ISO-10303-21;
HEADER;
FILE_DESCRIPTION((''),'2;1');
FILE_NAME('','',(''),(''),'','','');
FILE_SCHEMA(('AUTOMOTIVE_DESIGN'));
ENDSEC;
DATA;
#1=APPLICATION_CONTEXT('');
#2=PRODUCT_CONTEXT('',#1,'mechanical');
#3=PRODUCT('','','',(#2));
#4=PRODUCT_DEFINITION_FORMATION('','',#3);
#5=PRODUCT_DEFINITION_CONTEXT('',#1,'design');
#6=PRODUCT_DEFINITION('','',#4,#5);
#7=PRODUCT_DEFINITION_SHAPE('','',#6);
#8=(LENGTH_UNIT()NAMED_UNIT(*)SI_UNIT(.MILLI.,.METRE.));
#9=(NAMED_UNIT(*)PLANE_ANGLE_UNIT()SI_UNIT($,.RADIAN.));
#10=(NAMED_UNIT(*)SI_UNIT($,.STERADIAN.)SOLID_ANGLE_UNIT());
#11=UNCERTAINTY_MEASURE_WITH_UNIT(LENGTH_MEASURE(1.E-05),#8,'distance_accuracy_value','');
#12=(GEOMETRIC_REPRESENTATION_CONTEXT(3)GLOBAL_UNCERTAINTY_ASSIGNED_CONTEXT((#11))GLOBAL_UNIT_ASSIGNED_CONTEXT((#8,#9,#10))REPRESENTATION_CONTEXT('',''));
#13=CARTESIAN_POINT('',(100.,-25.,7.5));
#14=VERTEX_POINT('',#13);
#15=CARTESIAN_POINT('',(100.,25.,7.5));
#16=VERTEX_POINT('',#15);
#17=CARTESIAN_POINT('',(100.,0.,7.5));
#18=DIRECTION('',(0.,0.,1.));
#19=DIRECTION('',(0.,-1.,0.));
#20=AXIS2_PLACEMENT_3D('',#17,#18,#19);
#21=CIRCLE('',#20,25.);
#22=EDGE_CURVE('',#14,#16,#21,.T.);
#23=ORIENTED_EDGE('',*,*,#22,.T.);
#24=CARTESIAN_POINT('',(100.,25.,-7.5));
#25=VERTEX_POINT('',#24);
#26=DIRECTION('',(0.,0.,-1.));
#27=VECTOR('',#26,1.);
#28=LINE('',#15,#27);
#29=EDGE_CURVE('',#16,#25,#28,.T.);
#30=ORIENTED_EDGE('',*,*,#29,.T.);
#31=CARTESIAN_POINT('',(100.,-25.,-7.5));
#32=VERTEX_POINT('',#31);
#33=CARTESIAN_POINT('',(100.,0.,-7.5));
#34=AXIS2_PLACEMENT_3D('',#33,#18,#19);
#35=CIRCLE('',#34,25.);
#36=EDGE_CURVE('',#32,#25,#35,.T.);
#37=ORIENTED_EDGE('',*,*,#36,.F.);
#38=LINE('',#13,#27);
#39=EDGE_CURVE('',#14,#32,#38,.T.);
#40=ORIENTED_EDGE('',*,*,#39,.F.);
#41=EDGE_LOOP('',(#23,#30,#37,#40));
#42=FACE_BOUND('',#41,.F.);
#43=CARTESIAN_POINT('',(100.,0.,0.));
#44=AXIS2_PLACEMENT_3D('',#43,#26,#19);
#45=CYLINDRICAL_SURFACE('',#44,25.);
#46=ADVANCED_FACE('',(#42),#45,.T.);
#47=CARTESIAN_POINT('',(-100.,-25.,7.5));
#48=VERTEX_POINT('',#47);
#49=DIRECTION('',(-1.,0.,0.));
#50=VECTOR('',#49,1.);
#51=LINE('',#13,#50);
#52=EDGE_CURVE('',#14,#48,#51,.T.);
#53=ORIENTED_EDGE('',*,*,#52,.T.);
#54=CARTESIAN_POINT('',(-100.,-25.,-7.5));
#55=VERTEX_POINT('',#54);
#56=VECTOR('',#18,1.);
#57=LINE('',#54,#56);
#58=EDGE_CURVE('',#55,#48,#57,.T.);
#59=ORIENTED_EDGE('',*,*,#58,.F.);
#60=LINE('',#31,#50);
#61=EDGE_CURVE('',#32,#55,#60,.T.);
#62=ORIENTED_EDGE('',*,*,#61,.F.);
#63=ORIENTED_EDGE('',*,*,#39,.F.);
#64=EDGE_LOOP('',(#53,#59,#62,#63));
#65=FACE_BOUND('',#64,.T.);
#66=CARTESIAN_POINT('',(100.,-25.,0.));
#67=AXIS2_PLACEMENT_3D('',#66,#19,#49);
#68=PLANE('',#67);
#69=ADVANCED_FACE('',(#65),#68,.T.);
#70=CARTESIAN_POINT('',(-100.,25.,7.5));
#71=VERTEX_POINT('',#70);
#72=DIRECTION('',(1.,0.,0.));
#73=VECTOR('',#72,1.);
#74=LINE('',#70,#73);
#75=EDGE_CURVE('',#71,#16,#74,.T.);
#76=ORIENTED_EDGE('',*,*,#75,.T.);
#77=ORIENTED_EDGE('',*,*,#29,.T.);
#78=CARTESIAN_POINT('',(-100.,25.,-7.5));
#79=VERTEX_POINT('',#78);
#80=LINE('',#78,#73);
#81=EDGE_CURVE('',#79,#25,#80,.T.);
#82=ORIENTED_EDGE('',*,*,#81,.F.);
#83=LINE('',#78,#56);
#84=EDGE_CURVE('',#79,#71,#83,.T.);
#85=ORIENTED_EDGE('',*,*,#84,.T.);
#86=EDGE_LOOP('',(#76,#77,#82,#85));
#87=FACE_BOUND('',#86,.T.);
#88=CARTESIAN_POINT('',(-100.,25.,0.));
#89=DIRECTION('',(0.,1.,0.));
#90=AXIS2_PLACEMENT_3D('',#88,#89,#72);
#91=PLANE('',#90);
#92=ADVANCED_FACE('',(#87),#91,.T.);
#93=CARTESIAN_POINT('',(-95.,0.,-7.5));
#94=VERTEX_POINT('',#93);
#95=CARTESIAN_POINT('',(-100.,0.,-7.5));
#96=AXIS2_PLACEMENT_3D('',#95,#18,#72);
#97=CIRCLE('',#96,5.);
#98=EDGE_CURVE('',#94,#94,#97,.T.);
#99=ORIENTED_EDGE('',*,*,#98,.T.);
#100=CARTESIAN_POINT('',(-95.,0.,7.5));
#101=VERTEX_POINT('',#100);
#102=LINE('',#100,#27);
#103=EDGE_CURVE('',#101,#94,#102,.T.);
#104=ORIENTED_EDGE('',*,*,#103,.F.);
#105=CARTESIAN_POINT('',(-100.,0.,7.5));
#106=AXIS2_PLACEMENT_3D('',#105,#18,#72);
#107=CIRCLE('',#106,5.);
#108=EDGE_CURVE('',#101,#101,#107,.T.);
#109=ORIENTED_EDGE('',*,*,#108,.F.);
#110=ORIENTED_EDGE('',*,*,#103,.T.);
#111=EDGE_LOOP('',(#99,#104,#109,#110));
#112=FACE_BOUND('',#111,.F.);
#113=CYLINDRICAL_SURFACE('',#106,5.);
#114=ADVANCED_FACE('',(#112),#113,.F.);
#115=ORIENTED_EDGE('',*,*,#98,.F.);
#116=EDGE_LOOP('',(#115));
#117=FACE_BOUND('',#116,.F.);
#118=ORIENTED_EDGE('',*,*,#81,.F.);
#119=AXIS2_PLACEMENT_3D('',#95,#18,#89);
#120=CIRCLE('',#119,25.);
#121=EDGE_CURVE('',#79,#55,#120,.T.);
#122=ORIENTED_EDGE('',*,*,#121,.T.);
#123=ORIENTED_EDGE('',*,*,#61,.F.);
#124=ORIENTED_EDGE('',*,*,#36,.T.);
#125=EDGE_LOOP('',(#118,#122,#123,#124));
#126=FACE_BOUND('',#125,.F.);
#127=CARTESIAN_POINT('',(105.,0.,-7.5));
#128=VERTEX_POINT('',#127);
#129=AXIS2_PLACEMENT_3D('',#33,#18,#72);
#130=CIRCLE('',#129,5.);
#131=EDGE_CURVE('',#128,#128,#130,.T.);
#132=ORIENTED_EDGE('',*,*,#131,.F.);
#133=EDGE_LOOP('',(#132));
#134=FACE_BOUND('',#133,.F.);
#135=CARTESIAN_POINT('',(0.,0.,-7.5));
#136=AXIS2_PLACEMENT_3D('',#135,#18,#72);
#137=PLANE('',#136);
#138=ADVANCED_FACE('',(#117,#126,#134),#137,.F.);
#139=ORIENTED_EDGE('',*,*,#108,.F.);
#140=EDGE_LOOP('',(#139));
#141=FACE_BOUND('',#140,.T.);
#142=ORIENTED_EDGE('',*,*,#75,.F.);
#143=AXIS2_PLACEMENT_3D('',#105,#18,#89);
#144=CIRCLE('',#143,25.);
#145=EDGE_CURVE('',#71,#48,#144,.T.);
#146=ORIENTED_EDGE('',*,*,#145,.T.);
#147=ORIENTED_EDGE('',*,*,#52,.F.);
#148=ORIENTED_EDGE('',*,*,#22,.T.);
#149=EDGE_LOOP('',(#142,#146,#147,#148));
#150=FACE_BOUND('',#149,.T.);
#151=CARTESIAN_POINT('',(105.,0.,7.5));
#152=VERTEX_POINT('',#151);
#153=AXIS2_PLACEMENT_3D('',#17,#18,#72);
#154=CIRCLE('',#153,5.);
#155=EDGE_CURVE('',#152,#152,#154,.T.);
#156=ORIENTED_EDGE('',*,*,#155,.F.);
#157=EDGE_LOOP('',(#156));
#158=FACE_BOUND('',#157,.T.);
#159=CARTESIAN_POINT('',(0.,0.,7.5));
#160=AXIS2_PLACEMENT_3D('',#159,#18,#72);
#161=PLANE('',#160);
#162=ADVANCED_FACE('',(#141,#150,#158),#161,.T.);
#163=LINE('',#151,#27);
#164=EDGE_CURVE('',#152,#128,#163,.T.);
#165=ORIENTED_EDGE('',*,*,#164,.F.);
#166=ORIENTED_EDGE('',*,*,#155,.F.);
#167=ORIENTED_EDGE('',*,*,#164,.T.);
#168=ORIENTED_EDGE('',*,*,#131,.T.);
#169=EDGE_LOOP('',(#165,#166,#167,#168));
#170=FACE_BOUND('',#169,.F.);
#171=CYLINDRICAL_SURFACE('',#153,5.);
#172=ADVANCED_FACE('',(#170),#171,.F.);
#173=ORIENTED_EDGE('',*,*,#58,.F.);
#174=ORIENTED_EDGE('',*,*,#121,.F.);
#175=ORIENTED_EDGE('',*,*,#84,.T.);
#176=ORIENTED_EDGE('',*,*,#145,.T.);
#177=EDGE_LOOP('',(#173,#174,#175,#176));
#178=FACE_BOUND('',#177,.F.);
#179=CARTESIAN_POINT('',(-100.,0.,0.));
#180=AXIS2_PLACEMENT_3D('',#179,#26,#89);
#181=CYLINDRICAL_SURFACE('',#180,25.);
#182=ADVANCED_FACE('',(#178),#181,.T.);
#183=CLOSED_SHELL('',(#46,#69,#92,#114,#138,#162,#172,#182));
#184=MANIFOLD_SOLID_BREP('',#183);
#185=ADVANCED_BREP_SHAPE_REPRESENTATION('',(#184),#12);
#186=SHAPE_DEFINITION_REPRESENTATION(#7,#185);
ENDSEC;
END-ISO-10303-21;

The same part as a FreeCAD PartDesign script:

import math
import FreeCAD as App
import Part
import Sketcher
from FreeCAD import Vector

doc = App.newDocument("Part")
body = doc.addObject("PartDesign::Body", "Body")

# Sketch on XY plane
sketch1 = body.newObject("Sketcher::SketchObject", "Sketch")
sketch1.AttachmentSupport = (doc.getObject("XY_Plane"), [""])
sketch1.MapMode = "FlatFace"
sketch1.addGeometry(Part.LineSegment(Vector(100, 25, 0), Vector(-100, 25, 0)), False)
sketch1.addGeometry(Part.ArcOfCircle(Part.Circle(Vector(-100, 0, 0), Vector(0, 0, 1), 25), math.radians(90), math.radians(270)), False)
sketch1.addGeometry(Part.LineSegment(Vector(-100, -25, 0), Vector(100, -25, 0)), False)
sketch1.addGeometry(Part.ArcOfCircle(Part.Circle(Vector(100, 0, 0), Vector(0, 0, 1), 25), math.radians(-90), math.radians(90)), False)
sketch1.addConstraint(Sketcher.Constraint("Tangent", 0, 2, 1, 1))
sketch1.addConstraint(Sketcher.Constraint("Tangent", 1, 2, 2, 1))
sketch1.addConstraint(Sketcher.Constraint("Tangent", 2, 2, 3, 1))
sketch1.addConstraint(Sketcher.Constraint("Tangent", 3, 2, 0, 1))
sketch1.addConstraint(Sketcher.Constraint("Horizontal", 0))
sketch1.addConstraint(Sketcher.Constraint("Horizontal", 2))
sketch1.addConstraint(Sketcher.Constraint("Symmetric", 1, 3, 3, 3, -1, 1))
sketch1.addConstraint(Sketcher.Constraint("Radius", 1, 25.0))
sketch1.addConstraint(Sketcher.Constraint("DistanceX", 0, 2, 0, 1, 200.0))
pad1 = body.newObject("PartDesign::Pad", "Pad")
pad1.Profile = sketch1
pad1.Length = 15
pad1.Midplane = True

# Sketch on XY plane
sketch2 = body.newObject("Sketcher::SketchObject", "Sketch001")
sketch2.AttachmentSupport = (doc.getObject("XY_Plane"), [""])
sketch2.MapMode = "FlatFace"
sketch2.AttachmentOffset = App.Placement(Vector(0, 0, 7.5), App.Rotation())
sketch2.addGeometry(Part.Circle(Vector(-100, 0, 0), Vector(0, 0, 1), 5), False)
sketch2.addGeometry(Part.Circle(Vector(100, 0, 0), Vector(0, 0, 1), 5), False)
sketch2.addConstraint(Sketcher.Constraint("Equal", 0, 1))
sketch2.addConstraint(Sketcher.Constraint("Symmetric", 0, 3, 1, 3, -1, 1))
sketch2.addConstraint(Sketcher.Constraint("PointOnObject", 0, 3, -1))
sketch2.addConstraint(Sketcher.Constraint("Diameter", 0, 10.0))
sketch2.addConstraint(Sketcher.Constraint("DistanceX", 0, 3, -1, 1, 100.0))
pocket1 = body.newObject("PartDesign::Pocket", "Pocket")
pocket1.Profile = sketch2
pocket1.Type = "ThroughAll"

doc.recompute()
